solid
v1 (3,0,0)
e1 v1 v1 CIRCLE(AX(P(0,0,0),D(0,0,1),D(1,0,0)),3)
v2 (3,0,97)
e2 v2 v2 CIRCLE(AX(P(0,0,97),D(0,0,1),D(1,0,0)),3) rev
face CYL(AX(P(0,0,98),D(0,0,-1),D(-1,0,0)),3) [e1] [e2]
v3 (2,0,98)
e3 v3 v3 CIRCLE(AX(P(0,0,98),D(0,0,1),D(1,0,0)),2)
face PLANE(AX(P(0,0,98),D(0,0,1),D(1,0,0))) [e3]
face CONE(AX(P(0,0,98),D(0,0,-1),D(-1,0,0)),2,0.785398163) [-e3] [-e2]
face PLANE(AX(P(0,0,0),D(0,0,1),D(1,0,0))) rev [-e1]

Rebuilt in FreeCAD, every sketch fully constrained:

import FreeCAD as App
import Part
import Sketcher

V = App.Vector


def edges_at(feature, points):
    """Names of the edges that pass closest to the given points."""
    edges = feature.Shape.Edges
    near = lambda p: min(range(len(edges)), key=lambda i: edges[i].distToShape(Part.Vertex(*p))[0])
    return sorted({f"Edge{near(p) + 1}" for p in points})

doc = App.newDocument("Part")
body = doc.addObject("PartDesign::Body", "Body")

# Sketch on XY plane
sketch1 = body.newObject("Sketcher::SketchObject", "Sketch")
sketch1.AttachmentSupport = (doc.getObject("XY_Plane"), [""])
sketch1.MapMode = "FlatFace"
sketch1.addGeometry(Part.Circle(V(0, 0, 0), V(0, 0, 1), 3), False)
sketch1.addConstraint(Sketcher.Constraint("Coincident", 0, 3, -1, 1))
sketch1.addConstraint(Sketcher.Constraint("Diameter", 0, 6.0))
pad1 = body.newObject("PartDesign::Pad", "Pad")
pad1.Profile = sketch1
pad1.Length = 98
doc.recompute()

chamfer = body.newObject("PartDesign::Chamfer", "Chamfer")
chamfer.Base = (pad1, edges_at(pad1, [(-3, 0, 98)]))
chamfer.Size = 1

doc.recompute()
